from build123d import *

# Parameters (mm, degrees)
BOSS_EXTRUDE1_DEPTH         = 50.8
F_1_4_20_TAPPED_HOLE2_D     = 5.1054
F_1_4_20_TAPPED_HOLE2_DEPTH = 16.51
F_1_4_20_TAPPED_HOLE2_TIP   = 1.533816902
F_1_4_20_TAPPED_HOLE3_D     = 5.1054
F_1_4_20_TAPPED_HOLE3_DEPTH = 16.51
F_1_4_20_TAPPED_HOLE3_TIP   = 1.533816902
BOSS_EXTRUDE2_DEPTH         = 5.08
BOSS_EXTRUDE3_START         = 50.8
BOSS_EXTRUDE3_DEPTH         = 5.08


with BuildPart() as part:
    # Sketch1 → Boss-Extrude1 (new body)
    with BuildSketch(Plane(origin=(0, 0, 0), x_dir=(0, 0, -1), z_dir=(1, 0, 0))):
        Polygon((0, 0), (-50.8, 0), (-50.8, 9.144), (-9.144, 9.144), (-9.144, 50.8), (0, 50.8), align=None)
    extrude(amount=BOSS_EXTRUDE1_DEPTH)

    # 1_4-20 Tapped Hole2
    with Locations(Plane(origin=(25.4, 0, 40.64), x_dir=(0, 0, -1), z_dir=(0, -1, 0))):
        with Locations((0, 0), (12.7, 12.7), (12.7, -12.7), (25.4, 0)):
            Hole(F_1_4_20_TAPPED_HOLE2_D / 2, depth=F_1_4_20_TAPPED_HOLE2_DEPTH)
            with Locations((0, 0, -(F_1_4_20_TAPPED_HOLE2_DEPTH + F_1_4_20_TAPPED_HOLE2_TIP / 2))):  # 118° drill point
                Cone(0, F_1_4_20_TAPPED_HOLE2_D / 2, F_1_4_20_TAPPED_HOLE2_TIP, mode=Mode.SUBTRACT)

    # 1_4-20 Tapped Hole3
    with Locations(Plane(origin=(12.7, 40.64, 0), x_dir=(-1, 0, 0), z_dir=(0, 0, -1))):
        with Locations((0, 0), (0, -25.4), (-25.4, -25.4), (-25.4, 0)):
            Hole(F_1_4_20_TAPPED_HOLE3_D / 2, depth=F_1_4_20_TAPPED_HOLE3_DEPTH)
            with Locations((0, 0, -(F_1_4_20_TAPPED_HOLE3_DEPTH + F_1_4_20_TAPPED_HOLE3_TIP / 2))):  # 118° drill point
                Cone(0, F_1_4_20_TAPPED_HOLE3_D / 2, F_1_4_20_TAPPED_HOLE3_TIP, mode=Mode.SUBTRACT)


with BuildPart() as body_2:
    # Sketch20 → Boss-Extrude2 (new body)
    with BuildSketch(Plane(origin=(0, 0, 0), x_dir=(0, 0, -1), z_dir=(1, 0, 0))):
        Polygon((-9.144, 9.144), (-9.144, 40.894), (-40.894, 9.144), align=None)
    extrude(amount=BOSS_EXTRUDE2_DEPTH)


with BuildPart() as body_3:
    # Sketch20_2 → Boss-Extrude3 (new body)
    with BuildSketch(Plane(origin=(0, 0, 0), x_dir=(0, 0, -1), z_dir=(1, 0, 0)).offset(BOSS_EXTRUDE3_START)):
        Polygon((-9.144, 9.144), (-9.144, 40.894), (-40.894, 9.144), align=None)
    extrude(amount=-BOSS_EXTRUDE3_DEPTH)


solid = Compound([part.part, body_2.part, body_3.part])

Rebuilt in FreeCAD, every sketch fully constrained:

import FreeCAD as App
import Part
import Sketcher
Q = App.Units.Quantity

doc = App.newDocument("Part")
body = doc.addObject("PartDesign::Body", "Body")

# Sketch on YZ plane
sketch1 = body.newObject("Sketcher::SketchObject", "Sketch")
sketch1.AttachmentSupport = (doc.getObject("YZ_Plane"), [""])
sketch1.MapMode = "FlatFace"
sketch1.addGeometry([
    Part.LineSegment(App.Vector(0, 51, 0), App.Vector(0, 0, 0)),  # 0
    Part.LineSegment(App.Vector(0, 0, 0), App.Vector(51, 0, 0)),  # 1
    Part.LineSegment(App.Vector(51, 0, 0), App.Vector(51, 9, 0)),  # 2
    Part.LineSegment(App.Vector(51, 9, 0), App.Vector(9, 9, 0)),  # 3
    Part.LineSegment(App.Vector(9, 9, 0), App.Vector(9, 51, 0)),  # 4
    Part.LineSegment(App.Vector(9, 51, 0), App.Vector(0, 51, 0)),  # 5
], False)
sketch1.addConstraint([
    Sketcher.Constraint("Coincident", 0, 2, 1, 1),
    Sketcher.Constraint("Coincident", 1, 2, 2, 1),
    Sketcher.Constraint("Coincident", 2, 2, 3, 1),
    Sketcher.Constraint("Coincident", 3, 2, 4, 1),
    Sketcher.Constraint("Coincident", 4, 2, 5, 1),
    Sketcher.Constraint("Coincident", 5, 2, 0, 1),
    Sketcher.Constraint("Vertical", 0),
    Sketcher.Constraint("Horizontal", 1),
    Sketcher.Constraint("Vertical", 2),
    Sketcher.Constraint("Horizontal", 3),
    Sketcher.Constraint("Vertical", 4),
    Sketcher.Constraint("Horizontal", 5),
    Sketcher.Constraint("Coincident", 0, 2, -1, 1),
    Sketcher.Constraint("Equal", 1, 0),
    Sketcher.Constraint("Equal", 5, 2),
    Sketcher.Constraint("DistanceX", 1, 1, 1, 2, Q("2 in")),
    Sketcher.Constraint("DistanceX", 3, 2, 3, 1, Q("1.64 in")),
])
pad1 = body.newObject("PartDesign::Pad", "Pad")
pad1.Profile = sketch1
pad1.Length = Q("2 in")

# Sketch on XZ plane
sketch2 = body.newObject("Sketcher::SketchObject", "Sketch001")
sketch2.AttachmentSupport = (doc.getObject("XZ_Plane"), [""])
sketch2.MapMode = "FlatFace"
sketch2.addGeometry([
    Part.Circle(App.Vector(25.4, 40.6, 0), App.Vector(0, 0, 1), 2.6),
    Part.Circle(App.Vector(38.1, 27.9, 0), App.Vector(0, 0, 1), 2.6),
    Part.Circle(App.Vector(12.7, 27.9, 0), App.Vector(0, 0, 1), 2.6),
    Part.Circle(App.Vector(25.4, 15.2, 0), App.Vector(0, 0, 1), 2.6),
], False)
sketch2.addConstraint([
    Sketcher.Constraint("Equal", 0, 1),
    Sketcher.Constraint("Equal", 1, 2),
    Sketcher.Constraint("Equal", 2, 3),
    Sketcher.Constraint("Horizontal", 1, 3, 2, 3),
    Sketcher.Constraint("Vertical", 0, 3, 3, 3),
    Sketcher.Constraint("Diameter", 0, Q("0.201 in")),
    Sketcher.Constraint("DistanceX", -1, 1, 0, 3, Q("1 in")),
    Sketcher.Constraint("DistanceX", 2, 3, 1, 3, Q("1 in")),
    Sketcher.Constraint("DistanceY", 3, 3, 0, 3, Q("1 in")),
    Sketcher.Constraint("DistanceY", -1, 1, 0, 3, Q("1.6 in")),
    Sketcher.Constraint("DistanceX", -1, 1, 1, 3, Q("1.5 in")),
    Sketcher.Constraint("DistanceY", -1, 1, 1, 3, Q("1.1 in")),
])
doc.recompute()
hole = body.newObject("PartDesign::Hole", "Hole")
hole.Profile = sketch2
hole.ThreadType = "None"
hole.Diameter = Q("0.201 in")
hole.DepthType = "Dimension"
hole.Depth = Q("0.65 in")
hole.DrillPoint = "Angled"
hole.DrillPointAngle = 118

# Sketch on XY plane
sketch3 = body.newObject("Sketcher::SketchObject", "Sketch002")
sketch3.AttachmentSupport = (doc.getObject("XY_Plane"), [""])
sketch3.MapMode = "FlatFace"
sketch3.addGeometry([
    Part.Circle(App.Vector(12.7, 40.6, 0), App.Vector(0, 0, 1), 2.6),
    Part.Circle(App.Vector(12.7, 15.2, 0), App.Vector(0, 0, 1), 2.6),
    Part.Circle(App.Vector(38.1, 15.2, 0), App.Vector(0, 0, 1), 2.6),
    Part.Circle(App.Vector(38.1, 40.6, 0), App.Vector(0, 0, 1), 2.6),
], False)
sketch3.addConstraint([
    Sketcher.Constraint("Equal", 0, 1),
    Sketcher.Constraint("Equal", 1, 2),
    Sketcher.Constraint("Equal", 2, 3),
    Sketcher.Constraint("Horizontal", 1, 3, 2, 3),
    Sketcher.Constraint("Horizontal", 0, 3, 3, 3),
    Sketcher.Constraint("Vertical", 0, 3, 1, 3),
    Sketcher.Constraint("Vertical", 2, 3, 3, 3),
    Sketcher.Constraint("Diameter", 0, Q("0.201 in")),
    Sketcher.Constraint("DistanceY", 1, 3, 0, 3, Q("1 in")),
    Sketcher.Constraint("DistanceX", 1, 3, 2, 3, Q("1 in")),
    Sketcher.Constraint("DistanceX", -1, 1, 0, 3, Q("0.5 in")),
    Sketcher.Constraint("DistanceY", -1, 1, 0, 3, Q("1.6 in")),
])
doc.recompute()
hole2 = body.newObject("PartDesign::Hole", "Hole001")
hole2.Profile = sketch3
hole2.ThreadType = "None"
hole2.Diameter = Q("0.201 in")
hole2.DepthType = "Dimension"
hole2.Depth = Q("0.65 in")
hole2.DrillPoint = "Angled"
hole2.DrillPointAngle = 118
hole2.Reversed = True
body2 = doc.addObject("PartDesign::Body", "Body001")

# Sketch on YZ plane
sketch4 = body2.newObject("Sketcher::SketchObject", "Sketch003")
sketch4.AttachmentSupport = (doc.getObject("YZ_Plane001"), [""])
sketch4.MapMode = "FlatFace"
sketch4.addGeometry([
    Part.LineSegment(App.Vector(9, 9, 0), App.Vector(41, 9, 0)),
    Part.LineSegment(App.Vector(41, 9, 0), App.Vector(9, 41, 0)),
    Part.LineSegment(App.Vector(9, 41, 0), App.Vector(9, 9, 0)),
], False)
sketch4.addConstraint([
    Sketcher.Constraint("Coincident", 0, 2, 1, 1),
    Sketcher.Constraint("Coincident", 1, 2, 2, 1),
    Sketcher.Constraint("Coincident", 2, 2, 0, 1),
    Sketcher.Constraint("Horizontal", 0),
    Sketcher.Constraint("Vertical", 2),
    Sketcher.Constraint("Equal", 0, 2),
    Sketcher.Constraint("DistanceX", 0, 1, 0, 2, Q("1.25 in")),
    Sketcher.Constraint("DistanceX", -1, 1, 0, 2, Q("1.61 in")),
    Sketcher.Constraint("DistanceY", -1, 1, 0, 2, Q("0.36 in")),
])
pad2 = body2.newObject("PartDesign::Pad", "Pad001")
pad2.Profile = sketch4
pad2.Length = Q("0.2 in")
body3 = doc.addObject("PartDesign::Body", "Body002")

# Sketch on YZ plane
sketch5 = body3.newObject("Sketcher::SketchObject", "Sketch004")
sketch5.AttachmentSupport = (doc.getObject("YZ_Plane002"), [""])
sketch5.MapMode = "FlatFace"
sketch5.AttachmentOffset = App.Placement(App.Vector(0, 0, 2 * 25.4), App.Rotation())
sketch5.addGeometry([
    Part.LineSegment(App.Vector(9, 9, 0), App.Vector(41, 9, 0)),
    Part.LineSegment(App.Vector(41, 9, 0), App.Vector(9, 41, 0)),
    Part.LineSegment(App.Vector(9, 41, 0), App.Vector(9, 9, 0)),
], False)
sketch5.addConstraint([
    Sketcher.Constraint("Coincident", 0, 2, 1, 1),
    Sketcher.Constraint("Coincident", 1, 2, 2, 1),
    Sketcher.Constraint("Coincident", 2, 2, 0, 1),
    Sketcher.Constraint("Horizontal", 0),
    Sketcher.Constraint("Vertical", 2),
    Sketcher.Constraint("Equal", 0, 2),
    Sketcher.Constraint("DistanceX", 0, 1, 0, 2, Q("1.25 in")),
    Sketcher.Constraint("DistanceX", -1, 1, 0, 2, Q("1.61 in")),
    Sketcher.Constraint("DistanceY", -1, 1, 0, 2, Q("0.36 in")),
])
pad3 = body3.newObject("PartDesign::Pad", "Pad002")
pad3.Profile = sketch5
pad3.Length = Q("0.2 in")
pad3.Reversed = True

doc.recompute()
